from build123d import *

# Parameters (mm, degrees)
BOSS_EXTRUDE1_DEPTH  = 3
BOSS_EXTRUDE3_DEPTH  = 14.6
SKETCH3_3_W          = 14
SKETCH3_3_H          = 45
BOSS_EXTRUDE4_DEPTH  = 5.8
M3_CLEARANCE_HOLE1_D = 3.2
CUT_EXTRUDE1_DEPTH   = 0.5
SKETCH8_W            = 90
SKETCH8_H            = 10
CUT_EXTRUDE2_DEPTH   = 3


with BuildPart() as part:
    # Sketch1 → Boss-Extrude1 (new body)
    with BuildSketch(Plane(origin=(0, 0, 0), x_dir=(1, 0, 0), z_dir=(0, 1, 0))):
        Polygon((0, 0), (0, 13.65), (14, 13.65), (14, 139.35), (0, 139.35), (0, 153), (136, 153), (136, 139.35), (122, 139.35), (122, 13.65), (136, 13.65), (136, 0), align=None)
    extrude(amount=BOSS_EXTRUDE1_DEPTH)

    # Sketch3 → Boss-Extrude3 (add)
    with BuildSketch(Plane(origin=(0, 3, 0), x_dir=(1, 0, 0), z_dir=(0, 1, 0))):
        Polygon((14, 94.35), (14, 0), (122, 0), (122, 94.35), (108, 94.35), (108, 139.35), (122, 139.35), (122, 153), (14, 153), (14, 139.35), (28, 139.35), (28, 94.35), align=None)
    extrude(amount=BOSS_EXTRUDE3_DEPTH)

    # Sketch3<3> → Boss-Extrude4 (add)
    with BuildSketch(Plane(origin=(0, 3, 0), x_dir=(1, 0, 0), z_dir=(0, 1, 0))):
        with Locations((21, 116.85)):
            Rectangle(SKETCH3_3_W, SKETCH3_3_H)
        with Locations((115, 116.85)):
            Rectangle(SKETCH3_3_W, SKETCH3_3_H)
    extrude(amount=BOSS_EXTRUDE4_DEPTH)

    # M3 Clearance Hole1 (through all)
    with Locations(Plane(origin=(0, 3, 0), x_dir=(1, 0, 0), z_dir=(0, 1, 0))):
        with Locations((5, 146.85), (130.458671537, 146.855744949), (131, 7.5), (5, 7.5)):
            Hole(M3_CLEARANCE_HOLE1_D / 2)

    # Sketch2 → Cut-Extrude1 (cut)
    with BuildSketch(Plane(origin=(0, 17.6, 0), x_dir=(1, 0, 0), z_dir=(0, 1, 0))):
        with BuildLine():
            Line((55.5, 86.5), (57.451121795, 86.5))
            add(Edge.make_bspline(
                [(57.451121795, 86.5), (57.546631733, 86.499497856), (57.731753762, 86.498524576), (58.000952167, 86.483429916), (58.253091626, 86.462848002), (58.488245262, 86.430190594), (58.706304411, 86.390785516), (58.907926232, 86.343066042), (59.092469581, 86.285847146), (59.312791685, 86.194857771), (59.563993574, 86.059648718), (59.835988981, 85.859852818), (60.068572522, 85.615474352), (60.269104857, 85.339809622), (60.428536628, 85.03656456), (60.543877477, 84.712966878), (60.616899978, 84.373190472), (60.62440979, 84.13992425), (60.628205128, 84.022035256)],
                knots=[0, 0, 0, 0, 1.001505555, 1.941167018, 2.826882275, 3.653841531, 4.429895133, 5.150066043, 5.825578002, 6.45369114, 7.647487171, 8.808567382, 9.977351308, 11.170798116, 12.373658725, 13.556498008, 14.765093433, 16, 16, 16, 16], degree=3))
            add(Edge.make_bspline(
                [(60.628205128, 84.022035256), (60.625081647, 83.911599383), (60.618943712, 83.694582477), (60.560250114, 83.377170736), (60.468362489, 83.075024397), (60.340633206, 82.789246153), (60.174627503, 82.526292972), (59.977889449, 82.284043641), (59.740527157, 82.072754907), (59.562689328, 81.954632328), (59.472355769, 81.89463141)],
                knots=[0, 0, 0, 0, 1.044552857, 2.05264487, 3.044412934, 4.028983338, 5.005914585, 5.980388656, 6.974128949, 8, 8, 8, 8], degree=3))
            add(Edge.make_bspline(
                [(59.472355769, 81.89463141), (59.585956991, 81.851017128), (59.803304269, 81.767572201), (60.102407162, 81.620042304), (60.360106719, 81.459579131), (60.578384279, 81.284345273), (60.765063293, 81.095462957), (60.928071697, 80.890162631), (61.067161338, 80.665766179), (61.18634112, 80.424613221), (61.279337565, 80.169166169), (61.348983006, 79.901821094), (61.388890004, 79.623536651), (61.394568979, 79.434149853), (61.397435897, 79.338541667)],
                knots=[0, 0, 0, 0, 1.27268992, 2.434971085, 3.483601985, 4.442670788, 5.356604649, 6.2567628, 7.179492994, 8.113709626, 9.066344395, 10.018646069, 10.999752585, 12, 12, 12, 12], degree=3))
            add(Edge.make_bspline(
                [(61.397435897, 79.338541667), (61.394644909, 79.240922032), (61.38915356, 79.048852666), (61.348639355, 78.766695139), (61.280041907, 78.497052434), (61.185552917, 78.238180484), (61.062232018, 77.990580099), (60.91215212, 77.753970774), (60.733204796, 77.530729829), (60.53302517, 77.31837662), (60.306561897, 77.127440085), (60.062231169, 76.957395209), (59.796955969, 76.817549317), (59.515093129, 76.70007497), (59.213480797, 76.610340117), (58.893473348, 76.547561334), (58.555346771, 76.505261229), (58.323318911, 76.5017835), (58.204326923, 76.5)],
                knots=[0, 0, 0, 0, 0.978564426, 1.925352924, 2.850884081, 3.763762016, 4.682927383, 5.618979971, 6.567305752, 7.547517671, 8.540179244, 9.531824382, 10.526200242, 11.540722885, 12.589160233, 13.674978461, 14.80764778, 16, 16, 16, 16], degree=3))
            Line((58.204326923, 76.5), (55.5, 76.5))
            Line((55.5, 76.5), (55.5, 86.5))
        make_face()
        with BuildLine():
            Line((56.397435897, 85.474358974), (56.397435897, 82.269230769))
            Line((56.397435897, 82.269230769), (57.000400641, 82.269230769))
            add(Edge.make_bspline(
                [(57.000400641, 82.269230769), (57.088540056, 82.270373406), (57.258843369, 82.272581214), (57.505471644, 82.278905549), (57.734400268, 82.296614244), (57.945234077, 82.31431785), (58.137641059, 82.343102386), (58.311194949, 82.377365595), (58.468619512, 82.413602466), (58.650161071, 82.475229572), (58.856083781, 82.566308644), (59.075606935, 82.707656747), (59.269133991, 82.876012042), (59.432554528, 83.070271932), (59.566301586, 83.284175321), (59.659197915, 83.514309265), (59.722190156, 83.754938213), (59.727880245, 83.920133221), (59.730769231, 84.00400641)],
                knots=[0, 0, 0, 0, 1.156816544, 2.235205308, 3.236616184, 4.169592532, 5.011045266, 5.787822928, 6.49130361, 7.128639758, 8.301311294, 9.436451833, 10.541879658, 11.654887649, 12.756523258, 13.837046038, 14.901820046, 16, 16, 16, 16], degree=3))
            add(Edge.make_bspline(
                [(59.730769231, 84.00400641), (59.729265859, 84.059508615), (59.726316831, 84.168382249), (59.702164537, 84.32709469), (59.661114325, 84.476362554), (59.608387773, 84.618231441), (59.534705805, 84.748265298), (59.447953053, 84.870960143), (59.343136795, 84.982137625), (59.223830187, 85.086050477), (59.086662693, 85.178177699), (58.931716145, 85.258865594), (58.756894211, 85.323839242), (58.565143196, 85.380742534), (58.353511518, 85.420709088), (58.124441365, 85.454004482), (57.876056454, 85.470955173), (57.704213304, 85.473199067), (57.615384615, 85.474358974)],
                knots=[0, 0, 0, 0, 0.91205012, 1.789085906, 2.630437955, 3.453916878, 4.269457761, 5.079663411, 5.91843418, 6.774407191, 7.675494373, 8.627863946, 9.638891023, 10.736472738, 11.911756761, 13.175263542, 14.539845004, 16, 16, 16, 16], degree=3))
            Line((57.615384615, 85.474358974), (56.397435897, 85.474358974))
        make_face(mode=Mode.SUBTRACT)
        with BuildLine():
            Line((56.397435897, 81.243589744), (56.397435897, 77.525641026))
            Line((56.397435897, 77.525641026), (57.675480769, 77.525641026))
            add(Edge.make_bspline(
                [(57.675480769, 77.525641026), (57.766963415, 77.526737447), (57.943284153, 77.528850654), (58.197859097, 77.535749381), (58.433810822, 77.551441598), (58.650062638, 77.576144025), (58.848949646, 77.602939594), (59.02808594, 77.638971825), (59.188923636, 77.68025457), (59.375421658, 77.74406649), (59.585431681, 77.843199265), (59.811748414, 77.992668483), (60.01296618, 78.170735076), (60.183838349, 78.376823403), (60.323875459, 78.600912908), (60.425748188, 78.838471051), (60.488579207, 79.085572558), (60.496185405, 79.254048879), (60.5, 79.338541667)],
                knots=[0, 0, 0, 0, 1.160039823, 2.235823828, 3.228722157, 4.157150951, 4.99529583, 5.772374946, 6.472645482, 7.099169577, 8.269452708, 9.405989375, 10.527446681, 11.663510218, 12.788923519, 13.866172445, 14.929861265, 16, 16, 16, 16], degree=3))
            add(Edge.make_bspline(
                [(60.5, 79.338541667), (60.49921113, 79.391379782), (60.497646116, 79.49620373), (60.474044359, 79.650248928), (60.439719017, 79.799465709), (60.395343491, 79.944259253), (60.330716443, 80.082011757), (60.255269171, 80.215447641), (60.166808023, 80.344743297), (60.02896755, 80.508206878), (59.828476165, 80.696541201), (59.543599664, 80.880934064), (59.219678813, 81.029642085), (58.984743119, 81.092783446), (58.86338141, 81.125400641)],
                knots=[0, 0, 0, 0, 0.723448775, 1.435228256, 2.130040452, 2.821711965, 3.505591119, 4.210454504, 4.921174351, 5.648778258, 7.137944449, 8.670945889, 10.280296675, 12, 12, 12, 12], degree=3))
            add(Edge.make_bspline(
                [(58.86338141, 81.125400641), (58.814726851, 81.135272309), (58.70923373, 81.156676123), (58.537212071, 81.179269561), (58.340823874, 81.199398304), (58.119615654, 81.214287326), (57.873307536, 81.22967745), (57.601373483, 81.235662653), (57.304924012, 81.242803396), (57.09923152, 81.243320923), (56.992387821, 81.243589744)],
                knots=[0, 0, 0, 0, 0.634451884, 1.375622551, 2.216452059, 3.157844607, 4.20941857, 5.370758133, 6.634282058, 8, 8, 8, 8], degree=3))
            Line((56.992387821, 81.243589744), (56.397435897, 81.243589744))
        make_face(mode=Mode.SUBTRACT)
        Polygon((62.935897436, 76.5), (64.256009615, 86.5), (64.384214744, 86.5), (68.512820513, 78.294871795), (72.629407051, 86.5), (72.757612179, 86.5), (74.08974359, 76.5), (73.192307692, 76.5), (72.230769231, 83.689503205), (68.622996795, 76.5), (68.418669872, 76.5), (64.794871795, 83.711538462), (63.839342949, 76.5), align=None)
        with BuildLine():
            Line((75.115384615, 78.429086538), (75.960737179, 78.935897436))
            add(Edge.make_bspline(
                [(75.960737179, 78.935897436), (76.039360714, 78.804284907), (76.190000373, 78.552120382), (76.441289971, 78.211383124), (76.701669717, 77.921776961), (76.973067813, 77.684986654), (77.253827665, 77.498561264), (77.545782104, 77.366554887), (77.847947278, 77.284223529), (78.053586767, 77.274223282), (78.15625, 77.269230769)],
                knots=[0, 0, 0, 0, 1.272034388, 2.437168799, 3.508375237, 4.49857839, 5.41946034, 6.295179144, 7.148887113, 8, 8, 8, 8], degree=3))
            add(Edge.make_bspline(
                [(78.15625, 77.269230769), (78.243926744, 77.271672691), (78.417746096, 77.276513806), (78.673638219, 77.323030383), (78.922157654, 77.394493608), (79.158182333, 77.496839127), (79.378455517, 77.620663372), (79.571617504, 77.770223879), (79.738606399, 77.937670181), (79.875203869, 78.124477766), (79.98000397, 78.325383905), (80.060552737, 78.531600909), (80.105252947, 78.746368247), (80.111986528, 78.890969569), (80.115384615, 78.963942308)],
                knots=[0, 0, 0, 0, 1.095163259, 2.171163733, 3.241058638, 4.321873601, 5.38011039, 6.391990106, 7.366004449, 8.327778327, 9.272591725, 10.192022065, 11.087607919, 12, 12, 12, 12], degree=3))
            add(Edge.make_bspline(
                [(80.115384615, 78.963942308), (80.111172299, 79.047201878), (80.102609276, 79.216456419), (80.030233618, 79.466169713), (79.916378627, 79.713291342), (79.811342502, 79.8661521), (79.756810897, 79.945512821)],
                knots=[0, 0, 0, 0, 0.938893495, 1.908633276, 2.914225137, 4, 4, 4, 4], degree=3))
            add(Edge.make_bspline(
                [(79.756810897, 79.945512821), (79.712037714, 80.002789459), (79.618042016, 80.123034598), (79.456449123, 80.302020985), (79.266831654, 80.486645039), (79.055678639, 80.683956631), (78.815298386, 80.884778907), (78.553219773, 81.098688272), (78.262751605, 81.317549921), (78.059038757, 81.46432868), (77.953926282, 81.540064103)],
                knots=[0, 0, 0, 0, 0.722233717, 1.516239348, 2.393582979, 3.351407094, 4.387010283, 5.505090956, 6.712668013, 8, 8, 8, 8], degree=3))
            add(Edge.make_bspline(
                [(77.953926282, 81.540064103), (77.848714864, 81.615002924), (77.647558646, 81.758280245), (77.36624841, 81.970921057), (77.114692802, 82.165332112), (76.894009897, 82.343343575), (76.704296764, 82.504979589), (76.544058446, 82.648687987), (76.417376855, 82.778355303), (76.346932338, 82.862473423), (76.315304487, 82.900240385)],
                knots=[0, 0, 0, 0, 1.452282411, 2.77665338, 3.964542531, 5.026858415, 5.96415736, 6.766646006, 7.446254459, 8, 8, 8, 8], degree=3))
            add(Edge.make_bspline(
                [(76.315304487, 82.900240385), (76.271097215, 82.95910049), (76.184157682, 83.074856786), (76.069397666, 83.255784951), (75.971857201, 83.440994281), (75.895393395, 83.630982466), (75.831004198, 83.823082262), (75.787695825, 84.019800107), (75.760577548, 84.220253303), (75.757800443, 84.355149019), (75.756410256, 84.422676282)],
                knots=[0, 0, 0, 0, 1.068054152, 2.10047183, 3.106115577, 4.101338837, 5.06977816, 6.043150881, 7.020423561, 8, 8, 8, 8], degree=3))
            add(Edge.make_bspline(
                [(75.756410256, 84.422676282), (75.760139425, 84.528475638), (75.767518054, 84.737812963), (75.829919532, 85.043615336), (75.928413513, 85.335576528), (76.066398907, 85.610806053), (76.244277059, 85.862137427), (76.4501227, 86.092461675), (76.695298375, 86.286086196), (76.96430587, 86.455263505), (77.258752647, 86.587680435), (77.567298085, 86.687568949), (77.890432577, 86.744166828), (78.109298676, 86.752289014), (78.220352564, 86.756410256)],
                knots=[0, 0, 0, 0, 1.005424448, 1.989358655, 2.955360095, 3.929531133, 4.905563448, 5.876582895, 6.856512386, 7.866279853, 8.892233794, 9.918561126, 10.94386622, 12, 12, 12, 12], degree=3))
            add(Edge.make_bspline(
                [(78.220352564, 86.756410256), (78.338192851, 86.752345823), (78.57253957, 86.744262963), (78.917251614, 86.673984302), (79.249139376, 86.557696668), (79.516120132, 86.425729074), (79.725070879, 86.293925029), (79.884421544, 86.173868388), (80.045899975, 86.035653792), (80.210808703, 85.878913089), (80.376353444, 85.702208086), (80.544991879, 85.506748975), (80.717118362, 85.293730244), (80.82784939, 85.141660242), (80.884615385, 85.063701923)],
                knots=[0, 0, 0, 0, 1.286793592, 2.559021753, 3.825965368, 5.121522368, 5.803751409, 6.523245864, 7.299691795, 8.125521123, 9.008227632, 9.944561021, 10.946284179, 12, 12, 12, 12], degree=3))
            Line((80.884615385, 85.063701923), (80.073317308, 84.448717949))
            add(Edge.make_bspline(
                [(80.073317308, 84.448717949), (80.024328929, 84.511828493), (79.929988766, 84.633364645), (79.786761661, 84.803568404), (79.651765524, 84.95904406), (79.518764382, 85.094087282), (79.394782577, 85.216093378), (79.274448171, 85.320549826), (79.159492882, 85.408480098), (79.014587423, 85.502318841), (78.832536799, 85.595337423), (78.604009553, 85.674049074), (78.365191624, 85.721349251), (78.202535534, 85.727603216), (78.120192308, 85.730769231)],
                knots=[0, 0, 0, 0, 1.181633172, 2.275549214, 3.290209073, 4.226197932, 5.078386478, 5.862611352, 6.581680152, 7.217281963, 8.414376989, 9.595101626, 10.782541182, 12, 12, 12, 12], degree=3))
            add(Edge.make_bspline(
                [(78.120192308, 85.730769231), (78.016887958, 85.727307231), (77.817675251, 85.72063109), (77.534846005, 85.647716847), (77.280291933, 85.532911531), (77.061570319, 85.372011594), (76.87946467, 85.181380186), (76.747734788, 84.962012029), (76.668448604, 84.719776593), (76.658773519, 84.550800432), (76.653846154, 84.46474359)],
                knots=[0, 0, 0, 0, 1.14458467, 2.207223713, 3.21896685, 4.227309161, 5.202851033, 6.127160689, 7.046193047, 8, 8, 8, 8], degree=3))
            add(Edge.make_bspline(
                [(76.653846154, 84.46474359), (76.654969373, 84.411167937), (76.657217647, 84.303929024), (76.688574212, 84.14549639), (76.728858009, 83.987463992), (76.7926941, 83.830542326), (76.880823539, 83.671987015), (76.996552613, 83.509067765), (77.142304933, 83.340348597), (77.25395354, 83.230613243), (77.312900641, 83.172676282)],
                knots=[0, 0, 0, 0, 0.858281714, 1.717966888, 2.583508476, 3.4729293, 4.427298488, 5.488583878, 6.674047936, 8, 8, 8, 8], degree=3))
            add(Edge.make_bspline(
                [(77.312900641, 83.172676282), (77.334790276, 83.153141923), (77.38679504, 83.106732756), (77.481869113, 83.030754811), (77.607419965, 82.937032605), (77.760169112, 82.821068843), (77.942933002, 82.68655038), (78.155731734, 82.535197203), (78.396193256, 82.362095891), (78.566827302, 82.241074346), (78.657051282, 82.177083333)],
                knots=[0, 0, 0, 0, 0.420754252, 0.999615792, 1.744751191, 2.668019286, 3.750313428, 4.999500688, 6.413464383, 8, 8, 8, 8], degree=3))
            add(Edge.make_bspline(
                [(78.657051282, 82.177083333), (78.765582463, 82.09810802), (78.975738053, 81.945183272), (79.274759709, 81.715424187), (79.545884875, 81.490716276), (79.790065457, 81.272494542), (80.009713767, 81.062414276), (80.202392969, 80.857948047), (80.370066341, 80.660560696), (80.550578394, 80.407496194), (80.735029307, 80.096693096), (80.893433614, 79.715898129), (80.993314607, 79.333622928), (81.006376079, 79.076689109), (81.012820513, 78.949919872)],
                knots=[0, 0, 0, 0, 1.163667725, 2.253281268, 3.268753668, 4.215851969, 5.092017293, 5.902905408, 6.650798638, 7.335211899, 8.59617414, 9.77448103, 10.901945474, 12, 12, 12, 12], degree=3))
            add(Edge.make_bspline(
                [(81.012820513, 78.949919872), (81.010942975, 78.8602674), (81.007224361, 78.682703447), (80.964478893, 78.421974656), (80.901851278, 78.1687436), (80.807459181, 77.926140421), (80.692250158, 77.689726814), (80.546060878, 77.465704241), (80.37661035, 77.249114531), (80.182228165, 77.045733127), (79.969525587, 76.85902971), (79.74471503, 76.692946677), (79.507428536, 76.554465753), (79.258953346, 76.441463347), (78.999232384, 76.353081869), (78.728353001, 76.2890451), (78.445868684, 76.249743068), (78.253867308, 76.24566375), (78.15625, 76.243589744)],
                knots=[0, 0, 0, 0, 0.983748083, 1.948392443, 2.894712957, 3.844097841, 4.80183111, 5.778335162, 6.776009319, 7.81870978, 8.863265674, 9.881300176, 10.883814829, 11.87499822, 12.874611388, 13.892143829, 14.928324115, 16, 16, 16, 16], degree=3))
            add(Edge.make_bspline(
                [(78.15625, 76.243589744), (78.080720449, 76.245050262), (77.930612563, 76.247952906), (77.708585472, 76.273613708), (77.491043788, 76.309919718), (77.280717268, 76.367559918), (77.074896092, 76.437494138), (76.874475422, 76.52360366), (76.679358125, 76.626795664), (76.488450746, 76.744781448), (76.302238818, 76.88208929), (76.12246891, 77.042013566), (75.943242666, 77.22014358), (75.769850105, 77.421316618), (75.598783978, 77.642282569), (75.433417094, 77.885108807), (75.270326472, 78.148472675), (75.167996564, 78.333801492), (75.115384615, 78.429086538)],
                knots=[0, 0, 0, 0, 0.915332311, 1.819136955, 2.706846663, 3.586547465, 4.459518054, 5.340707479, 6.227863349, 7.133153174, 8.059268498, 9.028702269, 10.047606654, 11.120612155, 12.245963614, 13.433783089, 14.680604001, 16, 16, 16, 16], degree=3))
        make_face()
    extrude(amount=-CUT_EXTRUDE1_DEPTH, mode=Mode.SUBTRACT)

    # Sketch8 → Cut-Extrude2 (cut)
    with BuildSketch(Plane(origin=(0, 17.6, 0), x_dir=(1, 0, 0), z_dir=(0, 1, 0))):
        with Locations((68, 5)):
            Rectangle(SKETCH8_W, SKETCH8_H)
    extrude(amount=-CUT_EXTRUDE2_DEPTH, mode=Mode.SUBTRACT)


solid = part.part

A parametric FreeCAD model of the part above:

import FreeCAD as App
import Part
import Sketcher
from FreeCAD import Vector
Q = App.Units.Quantity


def add_polygon(sketch, points):
    """Adds a closed chain of lines whose ends are joined by coincident constraints."""
    first, n = sketch.GeometryCount, len(points)
    for a, b in zip(points, points[1:] + points[:1]):
        sketch.addGeometry(Part.LineSegment(App.Vector(*a, 0), App.Vector(*b, 0)), False)
    for i in range(n):
        sketch.addConstraint(Sketcher.Constraint("Coincident", first + i, 2, first + (i + 1) % n, 1))

doc = App.newDocument("Part")
body = doc.addObject("PartDesign::Body", "Body")

sketch1 = doc.addObject("Sketcher::SketchObject", "Sketch")
body.addObject(sketch1)
sketch1.AttachmentSupport = (doc.XZ_Plane, [""])
sketch1.MapMode = "FlatFace"
add_polygon(sketch1, [(0, -14), (0, 0), (136, 0), (136, -14), (122, -14), (122, -139), (136, -139), (136, -153), (0, -153), (0, -139), (14, -139), (14, -14)])
sketch1.addConstraint([
    Sketcher.Constraint("Vertical", 0),
    Sketcher.Constraint("Horizontal", 1),
    Sketcher.Constraint("Vertical", 2),
    Sketcher.Constraint("Horizontal", 3),
    Sketcher.Constraint("Vertical", 4),
    Sketcher.Constraint("Horizontal", 5),
    Sketcher.Constraint("Vertical", 6),
    Sketcher.Constraint("Horizontal", 7),
    Sketcher.Constraint("Vertical", 8),
    Sketcher.Constraint("Horizontal", 9),
    Sketcher.Constraint("Vertical", 10),
    Sketcher.Constraint("Horizontal", 11),
    Sketcher.Constraint("Coincident", 0, 2, -1, 1),
    Sketcher.Constraint("PointOnObject", 7, 2, -2),
    Sketcher.Constraint("Horizontal", 5, 2, 8, 2),
    Sketcher.Constraint("Horizontal", 3, 2, 10, 2),
    Sketcher.Constraint("Vertical", 2, 2, 5, 2),
    Sketcher.Constraint("Equal", 5, 9),
    Sketcher.Constraint("Equal", 2, 6),
    Sketcher.Constraint("DistanceX", 1, 1, 1, 2, Q("136 mm")),
    Sketcher.Constraint("DistanceX", 3, 2, 3, 1, Q("14 mm")),
    Sketcher.Constraint("DistanceY", 4, 2, 4, 1, Q("125.7 mm")),
    Sketcher.Constraint("DistanceY", 6, 2, -1, 1, Q("153 mm")),
])
pad1 = doc.addObject("PartDesign::Pad", "Pad")
body.addObject(pad1)
pad1.Profile = sketch1
pad1.Length = 3
pad1.Reversed = True

sketch2 = doc.addObject("Sketcher::SketchObject", "Sketch001")
body.addObject(sketch2)
sketch2.AttachmentSupport = (doc.XZ_Plane, [""])
sketch2.MapMode = "FlatFace"
sketch2.AttachmentOffset = App.Placement(Vector(0, 0, -3), App.Rotation())
add_polygon(sketch2, [(14, -94), (14, 0), (122, 0), (122, -94), (108, -94), (108, -139), (122, -139), (122, -153), (14, -153), (14, -139), (28, -139), (28, -94)])
sketch2.addConstraint([
    Sketcher.Constraint("Vertical", 0),
    Sketcher.Constraint("Horizontal", 1),
    Sketcher.Constraint("Vertical", 2),
    Sketcher.Constraint("Horizontal", 3),
    Sketcher.Constraint("Vertical", 4),
    Sketcher.Constraint("Horizontal", 5),
    Sketcher.Constraint("Vertical", 6),
    Sketcher.Constraint("Horizontal", 7),
    Sketcher.Constraint("Vertical", 8),
    Sketcher.Constraint("Horizontal", 9),
    Sketcher.Constraint("Vertical", 10),
    Sketcher.Constraint("Horizontal", 11),
    Sketcher.Constraint("PointOnObject", 0, 2, -1),
    Sketcher.Constraint("Horizontal", 5, 2, 8, 2),
    Sketcher.Constraint("Horizontal", 3, 2, 10, 2),
    Sketcher.Constraint("Vertical", 2, 2, 5, 2),
    Sketcher.Constraint("Vertical", 0, 2, 7, 2),
    Sketcher.Constraint("Equal", 5, 9),
    Sketcher.Constraint("DistanceX", 1, 1, 1, 2, Q("108 mm")),
    Sketcher.Constraint("DistanceX", 3, 2, 3, 1, Q("14 mm")),
    Sketcher.Constraint("DistanceY", 4, 2, 4, 1, Q("45 mm")),
    Sketcher.Constraint("DistanceX", -1, 1, 0, 2, Q("14 mm")),
    Sketcher.Constraint("DistanceY", 6, 2, -1, 1, Q("153 mm")),
    Sketcher.Constraint("DistanceY", 0, 1, 0, 2, Q("94.35 mm")),
])
pad2 = doc.addObject("PartDesign::Pad", "Pad001")
body.addObject(pad2)
pad2.Profile = sketch2
pad2.Length = 14.6
pad2.Reversed = True

sketch3 = doc.addObject("Sketcher::SketchObject", "Sketch002")
body.addObject(sketch3)
sketch3.AttachmentSupport = (doc.XZ_Plane, [""])
sketch3.MapMode = "FlatFace"
sketch3.AttachmentOffset = App.Placement(Vector(0, 0, -3), App.Rotation())
add_polygon(sketch3, [(14, -139), (14, -94), (28, -94), (28, -139)])
add_polygon(sketch3, [(108, -139), (108, -94), (122, -94), (122, -139)])
sketch3.addConstraint([
    Sketcher.Constraint("Vertical", 0),
    Sketcher.Constraint("Horizontal", 1),
    Sketcher.Constraint("Vertical", 2),
    Sketcher.Constraint("Horizontal", 3),
    Sketcher.Constraint("Vertical", 4),
    Sketcher.Constraint("Horizontal", 5),
    Sketcher.Constraint("Vertical", 6),
    Sketcher.Constraint("Horizontal", 7),
    Sketcher.Constraint("Horizontal", 1, 2, 4, 2),
    Sketcher.Constraint("Horizontal", 3, 2, 6, 2),
    Sketcher.Constraint("Equal", 3, 5),
    Sketcher.Constraint("DistanceX", 1, 1, 1, 2, Q("14 mm")),
    Sketcher.Constraint("DistanceY", 0, 1, 0, 2, Q("45 mm")),
    Sketcher.Constraint("DistanceX", -1, 1, 0, 2, Q("14 mm")),
    Sketcher.Constraint("DistanceX", -1, 1, 4, 2, Q("108 mm")),
    Sketcher.Constraint("DistanceY", 0, 2, -1, 1, Q("94.35 mm")),
])
pad3 = doc.addObject("PartDesign::Pad", "Pad002")
body.addObject(pad3)
pad3.Profile = sketch3
pad3.Length = 5.8
pad3.Reversed = True

sketch4 = doc.addObject("Sketcher::SketchObject", "Sketch003")
body.addObject(sketch4)
sketch4.AttachmentSupport = (doc.XZ_Plane, [""])
sketch4.MapMode = "FlatFace"
sketch4.AttachmentOffset = App.Placement(Vector(0, 0, -3), App.Rotation())
sketch4.addGeometry([
    Part.Circle(Vector(5, -146.8, 0), Vector(0, 0, 1), 1.6),
    Part.Circle(Vector(130.5, -146.9, 0), Vector(0, 0, 1), 1.6),
    Part.Circle(Vector(131, -7.5, 0), Vector(0, 0, 1), 1.6),
    Part.Circle(Vector(5, -7.5, 0), Vector(0, 0, 1), 1.6),
], False)
sketch4.addConstraint([
    Sketcher.Constraint("Equal", 0, 1),
    Sketcher.Constraint("Equal", 1, 2),
    Sketcher.Constraint("Equal", 2, 3),
    Sketcher.Constraint("Horizontal", 2, 3, 3, 3),
    Sketcher.Constraint("Vertical", 0, 3, 3, 3),
    Sketcher.Constraint("Diameter", 0, Q("3.2 mm")),
    Sketcher.Constraint("DistanceX", -1, 1, 0, 3, Q("5 mm")),
    Sketcher.Constraint("DistanceX", -1, 1, 2, 3, Q("131 mm")),
    Sketcher.Constraint("DistanceY", 2, 3, -1, 1, Q("7.5 mm")),
    Sketcher.Constraint("DistanceY", 0, 3, -1, 1, Q("146.85 mm")),
    Sketcher.Constraint("DistanceX", -1, 1, 1, 3, Q("130.458672 mm")),
    Sketcher.Constraint("DistanceY", 1, 3, -1, 1, Q("146.855745 mm")),
])
doc.recompute()
hole = doc.addObject("PartDesign::Hole", "Hole")
body.addObject(hole)
hole.Profile = sketch4
hole.ThreadType = "None"
hole.Diameter = 3.2
hole.DepthType = "ThroughAll"
hole.Reversed = True

sketch5 = doc.addObject("Sketcher::SketchObject", "Sketch004")
body.addObject(sketch5)
sketch5.AttachmentSupport = (doc.XZ_Plane, [""])
sketch5.MapMode = "FlatFace"
sketch5.AttachmentOffset = App.Placement(Vector(0, 0, -17.6), App.Rotation())
sketch5.addGeometry(Part.LineSegment(Vector(57.451122, -86.5, 0), Vector(55.5, -86.5, 0)), False)
sketch5.addGeometry(Part.LineSegment(Vector(55.5, -86.5, 0), Vector(55.5, -76.5, 0)), False)
sketch5.addGeometry(Part.LineSegment(Vector(55.5, -76.5, 0), Vector(58.204327, -76.5, 0)), False)
sketch5.addGeometry(Part.BSplineCurve([Vector(61.397436, -79.338542, 0), Vector(61.394645, -79.240922, 0), Vector(61.389154, -79.048853, 0), Vector(61.348639, -78.766695, 0), Vector(61.280042, -78.497052, 0), Vector(61.185553, -78.23818, 0), Vector(61.062232, -77.99058, 0), Vector(60.912152, -77.753971, 0), Vector(60.733205, -77.53073, 0), Vector(60.533025, -77.318377, 0), Vector(60.306562, -77.12744, 0), Vector(60.062231, -76.957395, 0), Vector(59.796956, -76.817549, 0), Vector(59.515093, -76.700075, 0), Vector(59.213481, -76.61034, 0), Vector(58.893473, -76.547561, 0), Vector(58.555347, -76.505261, 0), Vector(58.323319, -76.501784, 0), Vector(58.204327, -76.5, 0)], [4, 1, 1, 1, 1, 1, 1, 1, 1, 1, 1, 1, 1, 1, 1, 1, 4], [0, 0.978564426, 1.925352924, 2.850884081, 3.763762016, 4.682927383, 5.618979971, 6.567305752, 7.547517671, 8.540179244, 9.531824382, 10.526200242, 11.540722885, 12.589160233, 13.674978461, 14.80764778, 16], False, 3, [1, 1, 1, 1, 1, 1, 1, 1, 1, 1, 1, 1, 1, 1, 1, 1, 1, 1, 1], False), False)
sketch5.addGeometry(Part.BSplineCurve([Vector(59.472356, -81.894631, 0), Vector(59.585957, -81.851017, 0), Vector(59.803304, -81.767572, 0), Vector(60.102407, -81.620042, 0), Vector(60.360107, -81.459579, 0), Vector(60.578384, -81.284345, 0), Vector(60.765063, -81.095463, 0), Vector(60.928072, -80.890163, 0), Vector(61.067161, -80.665766, 0), Vector(61.186341, -80.424613, 0), Vector(61.279338, -80.169166, 0), Vector(61.348983, -79.901821, 0), Vector(61.38889, -79.623537, 0), Vector(61.394569, -79.43415, 0), Vector(61.397436, -79.338542, 0)], [4, 1, 1, 1, 1, 1, 1, 1, 1, 1, 1, 1, 4], [0, 1.27268992, 2.434971085, 3.483601985, 4.442670788, 5.356604649, 6.2567628, 7.179492994, 8.113709626, 9.066344395, 10.018646069, 10.999752585, 12], False, 3, [1, 1, 1, 1, 1, 1, 1, 1, 1, 1, 1, 1, 1, 1, 1], False), False)
sketch5.addGeometry(Part.BSplineCurve([Vector(60.628205, -84.022035, 0), Vector(60.625082, -83.911599, 0), Vector(60.618944, -83.694582, 0), Vector(60.56025, -83.377171, 0), Vector(60.468362, -83.075024, 0), Vector(60.340633, -82.789246, 0), Vector(60.174628, -82.526293, 0), Vector(59.977889, -82.284044, 0), Vector(59.740527, -82.072755, 0), Vector(59.562689, -81.954632, 0), Vector(59.472356, -81.894631, 0)], [4, 1, 1, 1, 1, 1, 1, 1, 4], [0, 1.044552857, 2.05264487, 3.044412934, 4.028983338, 5.005914585, 5.980388656, 6.974128949, 8], False, 3, [1, 1, 1, 1, 1, 1, 1, 1, 1, 1, 1], False), False)
sketch5.addGeometry(Part.BSplineCurve([Vector(57.451122, -86.5, 0), Vector(57.546632, -86.499498, 0), Vector(57.731754, -86.498525, 0), Vector(58.000952, -86.48343, 0), Vector(58.253092, -86.462848, 0), Vector(58.488245, -86.430191, 0), Vector(58.706304, -86.390786, 0), Vector(58.907926, -86.343066, 0), Vector(59.09247, -86.285847, 0), Vector(59.312792, -86.194858, 0), Vector(59.563994, -86.059649, 0), Vector(59.835989, -85.859853, 0), Vector(60.068573, -85.615474, 0), Vector(60.269105, -85.33981, 0), Vector(60.428537, -85.036565, 0), Vector(60.543877, -84.712967, 0), Vector(60.6169, -84.37319, 0), Vector(60.62441, -84.139924, 0), Vector(60.628205, -84.022035, 0)], [4, 1, 1, 1, 1, 1, 1, 1, 1, 1, 1, 1, 1, 1, 1, 1, 4], [0, 1.001505555, 1.941167018, 2.826882275, 3.653841531, 4.429895133, 5.150066043, 5.825578002, 6.45369114, 7.647487171, 8.808567382, 9.977351308, 11.170798116, 12.373658725, 13.556498008, 14.765093433, 16], False, 3, [1, 1, 1, 1, 1, 1, 1, 1, 1, 1, 1, 1, 1, 1, 1, 1, 1, 1, 1], False), False)
sketch5.addGeometry(Part.LineSegment(Vector(56.397436, -81.24359, 0), Vector(56.992388, -81.24359, 0)), False)
sketch5.addGeometry(Part.BSplineCurve([Vector(58.863381, -81.125401, 0), Vector(58.814727, -81.135272, 0), Vector(58.709234, -81.156676, 0), Vector(58.537212, -81.17927, 0), Vector(58.340824, -81.199398, 0), Vector(58.119616, -81.214287, 0), Vector(57.873308, -81.229677, 0), Vector(57.601373, -81.235663, 0), Vector(57.304924, -81.242803, 0), Vector(57.099232, -81.243321, 0), Vector(56.992388, -81.24359, 0)], [4, 1, 1, 1, 1, 1, 1, 1, 4], [0, 0.634451884, 1.375622551, 2.216452059, 3.157844607, 4.20941857, 5.370758133, 6.634282058, 8], False, 3, [1, 1, 1, 1, 1, 1, 1, 1, 1, 1, 1], False), False)
sketch5.addGeometry(Part.BSplineCurve([Vector(60.5, -79.338542, 0), Vector(60.499211, -79.39138, 0), Vector(60.497646, -79.496204, 0), Vector(60.474044, -79.650249, 0), Vector(60.439719, -79.799466, 0), Vector(60.395343, -79.944259, 0), Vector(60.330716, -80.082012, 0), Vector(60.255269, -80.215448, 0), Vector(60.166808, -80.344743, 0), Vector(60.028968, -80.508207, 0), Vector(59.828476, -80.696541, 0), Vector(59.5436, -80.880934, 0), Vector(59.219679, -81.029642, 0), Vector(58.984743, -81.092783, 0), Vector(58.863381, -81.125401, 0)], [4, 1, 1, 1, 1, 1, 1, 1, 1, 1, 1, 1, 4], [0, 0.723448775, 1.435228256, 2.130040452, 2.821711965, 3.505591119, 4.210454504, 4.921174351, 5.648778258, 7.137944449, 8.670945889, 10.280296675, 12], False, 3, [1, 1, 1, 1, 1, 1, 1, 1, 1, 1, 1, 1, 1, 1, 1], False), False)
sketch5.addGeometry(Part.BSplineCurve([Vector(57.675481, -77.525641, 0), Vector(57.766963, -77.526737, 0), Vector(57.943284, -77.528851, 0), Vector(58.197859, -77.535749, 0), Vector(58.433811, -77.551442, 0), Vector(58.650063, -77.576144, 0), Vector(58.84895, -77.60294, 0), Vector(59.028086, -77.638972, 0), Vector(59.188924, -77.680255, 0), Vector(59.375422, -77.744066, 0), Vector(59.585432, -77.843199, 0), Vector(59.811748, -77.992668, 0), Vector(60.012966, -78.170735, 0), Vector(60.183838, -78.376823, 0), Vector(60.323875, -78.600913, 0), Vector(60.425748, -78.838471, 0), Vector(60.488579, -79.085573, 0), Vector(60.496185, -79.254049, 0), Vector(60.5, -79.338542, 0)], [4, 1, 1, 1, 1, 1, 1, 1, 1, 1, 1, 1, 1, 1, 1, 1, 4], [0, 1.160039823, 2.235823828, 3.228722157, 4.157150951, 4.99529583, 5.772374946, 6.472645482, 7.099169577, 8.269452708, 9.405989375, 10.527446681, 11.663510218, 12.788923519, 13.866172445, 14.929861265, 16], False, 3, [1, 1, 1, 1, 1, 1, 1, 1, 1, 1, 1, 1, 1, 1, 1, 1, 1, 1, 1], False), False)
sketch5.addGeometry(Part.LineSegment(Vector(57.675481, -77.525641, 0), Vector(56.397436, -77.525641, 0)), False)
sketch5.addGeometry(Part.LineSegment(Vector(56.397436, -77.525641, 0), Vector(56.397436, -81.24359, 0)), False)
sketch5.addGeometry(Part.LineSegment(Vector(56.397436, -85.474359, 0), Vector(57.615385, -85.474359, 0)), False)
sketch5.addGeometry(Part.BSplineCurve([Vector(59.730769, -84.004006, 0), Vector(59.729266, -84.059509, 0), Vector(59.726317, -84.168382, 0), Vector(59.702165, -84.327095, 0), Vector(59.661114, -84.476363, 0), Vector(59.608388, -84.618231, 0), Vector(59.534706, -84.748265, 0), Vector(59.447953, -84.87096, 0), Vector(59.343137, -84.982138, 0), Vector(59.22383, -85.08605, 0), Vector(59.086663, -85.178178, 0), Vector(58.931716, -85.258866, 0), Vector(58.756894, -85.323839, 0), Vector(58.565143, -85.380743, 0), Vector(58.353512, -85.420709, 0), Vector(58.124441, -85.454004, 0), Vector(57.876056, -85.470955, 0), Vector(57.704213, -85.473199, 0), Vector(57.615385, -85.474359, 0)], [4, 1, 1, 1, 1, 1, 1, 1, 1, 1, 1, 1, 1, 1, 1, 1, 4], [0, 0.91205012, 1.789085906, 2.630437955, 3.453916878, 4.269457761, 5.079663411, 5.91843418, 6.774407191, 7.675494373, 8.627863946, 9.638891023, 10.736472738, 11.911756761, 13.175263542, 14.539845004, 16], False, 3, [1, 1, 1, 1, 1, 1, 1, 1, 1, 1, 1, 1, 1, 1, 1, 1, 1, 1, 1], False), False)
sketch5.addGeometry(Part.BSplineCurve([Vector(57.000401, -82.269231, 0), Vector(57.08854, -82.270373, 0), Vector(57.258843, -82.272581, 0), Vector(57.505472, -82.278906, 0), Vector(57.7344, -82.296614, 0), Vector(57.945234, -82.314318, 0), Vector(58.137641, -82.343102, 0), Vector(58.311195, -82.377366, 0), Vector(58.46862, -82.413602, 0), Vector(58.650161, -82.47523, 0), Vector(58.856084, -82.566309, 0), Vector(59.075607, -82.707657, 0), Vector(59.269134, -82.876012, 0), Vector(59.432555, -83.070272, 0), Vector(59.566302, -83.284175, 0), Vector(59.659198, -83.514309, 0), Vector(59.72219, -83.754938, 0), Vector(59.72788, -83.920133, 0), Vector(59.730769, -84.004006, 0)], [4, 1, 1, 1, 1, 1, 1, 1, 1, 1, 1, 1, 1, 1, 1, 1, 4], [0, 1.156816544, 2.235205308, 3.236616184, 4.169592532, 5.011045266, 5.787822928, 6.49130361, 7.128639758, 8.301311294, 9.436451833, 10.541879658, 11.654887649, 12.756523258, 13.837046038, 14.901820046, 16], False, 3, [1, 1, 1, 1, 1, 1, 1, 1, 1, 1, 1, 1, 1, 1, 1, 1, 1, 1, 1], False), False)
sketch5.addGeometry(Part.LineSegment(Vector(57.000401, -82.269231, 0), Vector(56.397436, -82.269231, 0)), False)
sketch5.addGeometry(Part.LineSegment(Vector(56.397436, -82.269231, 0), Vector(56.397436, -85.474359, 0)), False)
add_polygon(sketch5, [(64.25601, -86.5), (62.935897, -76.5), (63.839343, -76.5), (64.794872, -83.711538), (68.41867, -76.5), (68.622997, -76.5), (72.230769, -83.689503), (73.192308, -76.5), (74.089744, -76.5), (72.757612, -86.5), (72.629407, -86.5), (68.512821, -78.294872), (64.384215, -86.5)])
sketch5.addGeometry(Part.LineSegment(Vector(75.960737, -78.935897, 0), Vector(75.115385, -78.429087, 0)), False)
sketch5.addGeometry(Part.BSplineCurve([Vector(78.15625, -76.24359, 0), Vector(78.08072, -76.24505, 0), Vector(77.930613, -76.247953, 0), Vector(77.708585, -76.273614, 0), Vector(77.491044, -76.30992, 0), Vector(77.280717, -76.36756, 0), Vector(77.074896, -76.437494, 0), Vector(76.874475, -76.523604, 0), Vector(76.679358, -76.626796, 0), Vector(76.488451, -76.744781, 0), Vector(76.302239, -76.882089, 0), Vector(76.122469, -77.042014, 0), Vector(75.943243, -77.220144, 0), Vector(75.76985, -77.421317, 0), Vector(75.598784, -77.642283, 0), Vector(75.433417, -77.885109, 0), Vector(75.270326, -78.148473, 0), Vector(75.167997, -78.333801, 0), Vector(75.115385, -78.429087, 0)], [4, 1, 1, 1, 1, 1, 1, 1, 1, 1, 1, 1, 1, 1, 1, 1, 4], [0, 0.915332311, 1.819136955, 2.706846663, 3.586547465, 4.459518054, 5.340707479, 6.227863349, 7.133153174, 8.059268498, 9.028702269, 10.047606654, 11.120612155, 12.245963614, 13.433783089, 14.680604001, 16], False, 3, [1, 1, 1, 1, 1, 1, 1, 1, 1, 1, 1, 1, 1, 1, 1, 1, 1, 1, 1], False), False)
sketch5.addGeometry(Part.BSplineCurve([Vector(81.012821, -78.94992, 0), Vector(81.010943, -78.860267, 0), Vector(81.007224, -78.682703, 0), Vector(80.964479, -78.421975, 0), Vector(80.901851, -78.168744, 0), Vector(80.807459, -77.92614, 0), Vector(80.69225, -77.689727, 0), Vector(80.546061, -77.465704, 0), Vector(80.37661, -77.249115, 0), Vector(80.182228, -77.045733, 0), Vector(79.969526, -76.85903, 0), Vector(79.744715, -76.692947, 0), Vector(79.507429, -76.554466, 0), Vector(79.258953, -76.441463, 0), Vector(78.999232, -76.353082, 0), Vector(78.728353, -76.289045, 0), Vector(78.445869, -76.249743, 0), Vector(78.253867, -76.245664, 0), Vector(78.15625, -76.24359, 0)], [4, 1, 1, 1, 1, 1, 1, 1, 1, 1, 1, 1, 1, 1, 1, 1, 4], [0, 0.983748083, 1.948392443, 2.894712957, 3.844097841, 4.80183111, 5.778335162, 6.776009319, 7.81870978, 8.863265674, 9.881300176, 10.883814829, 11.87499822, 12.874611388, 13.892143829, 14.928324115, 16], False, 3, [1, 1, 1, 1, 1, 1, 1, 1, 1, 1, 1, 1, 1, 1, 1, 1, 1, 1, 1], False), False)
sketch5.addGeometry(Part.BSplineCurve([Vector(78.657051, -82.177083, 0), Vector(78.765582, -82.098108, 0), Vector(78.975738, -81.945183, 0), Vector(79.27476, -81.715424, 0), Vector(79.545885, -81.490716, 0), Vector(79.790065, -81.272495, 0), Vector(80.009714, -81.062414, 0), Vector(80.202393, -80.857948, 0), Vector(80.370066, -80.660561, 0), Vector(80.550578, -80.407496, 0), Vector(80.735029, -80.096693, 0), Vector(80.893434, -79.715898, 0), Vector(80.993315, -79.333623, 0), Vector(81.006376, -79.076689, 0), Vector(81.012821, -78.94992, 0)], [4, 1, 1, 1, 1, 1, 1, 1, 1, 1, 1, 1, 4], [0, 1.163667725, 2.253281268, 3.268753668, 4.215851969, 5.092017293, 5.902905408, 6.650798638, 7.335211899, 8.59617414, 9.77448103, 10.901945474, 12], False, 3, [1, 1, 1, 1, 1, 1, 1, 1, 1, 1, 1, 1, 1, 1, 1], False), False)
sketch5.addGeometry(Part.BSplineCurve([Vector(77.312901, -83.172676, 0), Vector(77.33479, -83.153142, 0), Vector(77.386795, -83.106733, 0), Vector(77.481869, -83.030755, 0), Vector(77.60742, -82.937033, 0), Vector(77.760169, -82.821069, 0), Vector(77.942933, -82.68655, 0), Vector(78.155732, -82.535197, 0), Vector(78.396193, -82.362096, 0), Vector(78.566827, -82.241074, 0), Vector(78.657051, -82.177083, 0)], [4, 1, 1, 1, 1, 1, 1, 1, 4], [0, 0.420754252, 0.999615792, 1.744751191, 2.668019286, 3.750313428, 4.999500688, 6.413464383, 8], False, 3, [1, 1, 1, 1, 1, 1, 1, 1, 1, 1, 1], False), False)
sketch5.addGeometry(Part.BSplineCurve([Vector(76.653846, -84.464744, 0), Vector(76.654969, -84.411168, 0), Vector(76.657218, -84.303929, 0), Vector(76.688574, -84.145496, 0), Vector(76.728858, -83.987464, 0), Vector(76.792694, -83.830542, 0), Vector(76.880824, -83.671987, 0), Vector(76.996553, -83.509068, 0), Vector(77.142305, -83.340349, 0), Vector(77.253954, -83.230613, 0), Vector(77.312901, -83.172676, 0)], [4, 1, 1, 1, 1, 1, 1, 1, 4], [0, 0.858281714, 1.717966888, 2.583508476, 3.4729293, 4.427298488, 5.488583878, 6.674047936, 8], False, 3, [1, 1, 1, 1, 1, 1, 1, 1, 1, 1, 1], False), False)
sketch5.addGeometry(Part.BSplineCurve([Vector(78.120192, -85.730769, 0), Vector(78.016888, -85.727307, 0), Vector(77.817675, -85.720631, 0), Vector(77.534846, -85.647717, 0), Vector(77.280292, -85.532912, 0), Vector(77.06157, -85.372012, 0), Vector(76.879465, -85.18138, 0), Vector(76.747735, -84.962012, 0), Vector(76.668449, -84.719777, 0), Vector(76.658774, -84.5508, 0), Vector(76.653846, -84.464744, 0)], [4, 1, 1, 1, 1, 1, 1, 1, 4], [0, 1.14458467, 2.207223713, 3.21896685, 4.227309161, 5.202851033, 6.127160689, 7.046193047, 8], False, 3, [1, 1, 1, 1, 1, 1, 1, 1, 1, 1, 1], False), False)
sketch5.addGeometry(Part.BSplineCurve([Vector(80.073317, -84.448718, 0), Vector(80.024329, -84.511828, 0), Vector(79.929989, -84.633365, 0), Vector(79.786762, -84.803568, 0), Vector(79.651766, -84.959044, 0), Vector(79.518764, -85.094087, 0), Vector(79.394783, -85.216093, 0), Vector(79.274448, -85.32055, 0), Vector(79.159493, -85.40848, 0), Vector(79.014587, -85.502319, 0), Vector(78.832537, -85.595337, 0), Vector(78.60401, -85.674049, 0), Vector(78.365192, -85.721349, 0), Vector(78.202536, -85.727603, 0), Vector(78.120192, -85.730769, 0)], [4, 1, 1, 1, 1, 1, 1, 1, 1, 1, 1, 1, 4], [0, 1.181633172, 2.275549214, 3.290209073, 4.226197932, 5.078386478, 5.862611352, 6.581680152, 7.217281963, 8.414376989, 9.595101626, 10.782541182, 12], False, 3, [1, 1, 1, 1, 1, 1, 1, 1, 1, 1, 1, 1, 1, 1, 1], False), False)
sketch5.addGeometry(Part.LineSegment(Vector(80.073317, -84.448718, 0), Vector(80.884615, -85.063702, 0)), False)
sketch5.addGeometry(Part.BSplineCurve([Vector(78.220353, -86.75641, 0), Vector(78.338193, -86.752346, 0), Vector(78.57254, -86.744263, 0), Vector(78.917252, -86.673984, 0), Vector(79.249139, -86.557697, 0), Vector(79.51612, -86.425729, 0), Vector(79.725071, -86.293925, 0), Vector(79.884422, -86.173868, 0), Vector(80.0459, -86.035654, 0), Vector(80.210809, -85.878913, 0), Vector(80.376353, -85.702208, 0), Vector(80.544992, -85.506749, 0), Vector(80.717118, -85.29373, 0), Vector(80.827849, -85.14166, 0), Vector(80.884615, -85.063702, 0)], [4, 1, 1, 1, 1, 1, 1, 1, 1, 1, 1, 1, 4], [0, 1.286793592, 2.559021753, 3.825965368, 5.121522368, 5.803751409, 6.523245864, 7.299691795, 8.125521123, 9.008227632, 9.944561021, 10.946284179, 12], False, 3, [1, 1, 1, 1, 1, 1, 1, 1, 1, 1, 1, 1, 1, 1, 1], False), False)
sketch5.addGeometry(Part.BSplineCurve([Vector(75.75641, -84.422676, 0), Vector(75.760139, -84.528476, 0), Vector(75.767518, -84.737813, 0), Vector(75.82992, -85.043615, 0), Vector(75.928414, -85.335577, 0), Vector(76.066399, -85.610806, 0), Vector(76.244277, -85.862137, 0), Vector(76.450123, -86.092462, 0), Vector(76.695298, -86.286086, 0), Vector(76.964306, -86.455264, 0), Vector(77.258753, -86.58768, 0), Vector(77.567298, -86.687569, 0), Vector(77.890433, -86.744167, 0), Vector(78.109299, -86.752289, 0), Vector(78.220353, -86.75641, 0)], [4, 1, 1, 1, 1, 1, 1, 1, 1, 1, 1, 1, 4], [0, 1.005424448, 1.989358655, 2.955360095, 3.929531133, 4.905563448, 5.876582895, 6.856512386, 7.866279853, 8.892233794, 9.918561126, 10.94386622, 12], False, 3, [1, 1, 1, 1, 1, 1, 1, 1, 1, 1, 1, 1, 1, 1, 1], False), False)
sketch5.addGeometry(Part.BSplineCurve([Vector(76.315304, -82.90024, 0), Vector(76.271097, -82.9591, 0), Vector(76.184158, -83.074857, 0), Vector(76.069398, -83.255785, 0), Vector(75.971857, -83.440994, 0), Vector(75.895393, -83.630982, 0), Vector(75.831004, -83.823082, 0), Vector(75.787696, -84.0198, 0), Vector(75.760578, -84.220253, 0), Vector(75.7578, -84.355149, 0), Vector(75.75641, -84.422676, 0)], [4, 1, 1, 1, 1, 1, 1, 1, 4], [0, 1.068054152, 2.10047183, 3.106115577, 4.101338837, 5.06977816, 6.043150881, 7.020423561, 8], False, 3, [1, 1, 1, 1, 1, 1, 1, 1, 1, 1, 1], False), False)
sketch5.addGeometry(Part.BSplineCurve([Vector(77.953926, -81.540064, 0), Vector(77.848715, -81.615003, 0), Vector(77.647559, -81.75828, 0), Vector(77.366248, -81.970921, 0), Vector(77.114693, -82.165332, 0), Vector(76.89401, -82.343344, 0), Vector(76.704297, -82.50498, 0), Vector(76.544058, -82.648688, 0), Vector(76.417377, -82.778355, 0), Vector(76.346932, -82.862473, 0), Vector(76.315304, -82.90024, 0)], [4, 1, 1, 1, 1, 1, 1, 1, 4], [0, 1.452282411, 2.77665338, 3.964542531, 5.026858415, 5.96415736, 6.766646006, 7.446254459, 8], False, 3, [1, 1, 1, 1, 1, 1, 1, 1, 1, 1, 1], False), False)
sketch5.addGeometry(Part.BSplineCurve([Vector(79.756811, -79.945513, 0), Vector(79.712038, -80.002789, 0), Vector(79.618042, -80.123035, 0), Vector(79.456449, -80.302021, 0), Vector(79.266832, -80.486645, 0), Vector(79.055679, -80.683957, 0), Vector(78.815298, -80.884779, 0), Vector(78.55322, -81.098688, 0), Vector(78.262752, -81.31755, 0), Vector(78.059039, -81.464329, 0), Vector(77.953926, -81.540064, 0)], [4, 1, 1, 1, 1, 1, 1, 1, 4], [0, 0.722233717, 1.516239348, 2.393582979, 3.351407094, 4.387010283, 5.505090956, 6.712668013, 8], False, 3, [1, 1, 1, 1, 1, 1, 1, 1, 1, 1, 1], False), False)
sketch5.addGeometry(Part.BSplineCurve([Vector(80.115385, -78.963942, 0), Vector(80.111172, -79.047202, 0), Vector(80.102609, -79.216456, 0), Vector(80.030234, -79.46617, 0), Vector(79.916379, -79.713291, 0), Vector(79.811343, -79.866152, 0), Vector(79.756811, -79.945513, 0)], [4, 1, 1, 1, 4], [0, 0.938893495, 1.908633276, 2.914225137, 4], False, 3, [1, 1, 1, 1, 1, 1, 1], False), False)
sketch5.addGeometry(Part.BSplineCurve([Vector(78.15625, -77.269231, 0), Vector(78.243927, -77.271673, 0), Vector(78.417746, -77.276514, 0), Vector(78.673638, -77.32303, 0), Vector(78.922158, -77.394494, 0), Vector(79.158182, -77.496839, 0), Vector(79.378456, -77.620663, 0), Vector(79.571618, -77.770224, 0), Vector(79.738606, -77.93767, 0), Vector(79.875204, -78.124478, 0), Vector(79.980004, -78.325384, 0), Vector(80.060553, -78.531601, 0), Vector(80.105253, -78.746368, 0), Vector(80.111987, -78.89097, 0), Vector(80.115385, -78.963942, 0)], [4, 1, 1, 1, 1, 1, 1, 1, 1, 1, 1, 1, 4], [0, 1.095163259, 2.171163733, 3.241058638, 4.321873601, 5.38011039, 6.391990106, 7.366004449, 8.327778327, 9.272591725, 10.192022065, 11.087607919, 12], False, 3, [1, 1, 1, 1, 1, 1, 1, 1, 1, 1, 1, 1, 1, 1, 1], False), False)
sketch5.addGeometry(Part.BSplineCurve([Vector(75.960737, -78.935897, 0), Vector(76.039361, -78.804285, 0), Vector(76.19, -78.55212, 0), Vector(76.44129, -78.211383, 0), Vector(76.70167, -77.921777, 0), Vector(76.973068, -77.684987, 0), Vector(77.253828, -77.498561, 0), Vector(77.545782, -77.366555, 0), Vector(77.847947, -77.284224, 0), Vector(78.053587, -77.274223, 0), Vector(78.15625, -77.269231, 0)], [4, 1, 1, 1, 1, 1, 1, 1, 4], [0, 1.272034388, 2.437168799, 3.508375237, 4.49857839, 5.41946034, 6.295179144, 7.148887113, 8], False, 3, [1, 1, 1, 1, 1, 1, 1, 1, 1, 1, 1], False), False)
sketch5.addConstraint([
    Sketcher.Constraint("Block", 3),
    Sketcher.Constraint("Block", 4),
    Sketcher.Constraint("Block", 5),
    Sketcher.Constraint("Block", 6),
    Sketcher.Constraint("Block", 8),
    Sketcher.Constraint("Block", 9),
    Sketcher.Constraint("Block", 10),
    Sketcher.Constraint("Block", 14),
    Sketcher.Constraint("Block", 15),
    Sketcher.Constraint("Block", 32),
    Sketcher.Constraint("Block", 33),
    Sketcher.Constraint("Block", 34),
    Sketcher.Constraint("Block", 35),
    Sketcher.Constraint("Block", 36),
    Sketcher.Constraint("Block", 37),
    Sketcher.Constraint("Block", 38),
    Sketcher.Constraint("Block", 40),
    Sketcher.Constraint("Block", 41),
    Sketcher.Constraint("Block", 42),
    Sketcher.Constraint("Block", 43),
    Sketcher.Constraint("Block", 44),
    Sketcher.Constraint("Block", 45),
    Sketcher.Constraint("Block", 46),
    Sketcher.Constraint("Block", 47),
    Sketcher.Constraint("Coincident", 0, 2, 1, 1),
    Sketcher.Constraint("Coincident", 1, 2, 2, 1),
    Sketcher.Constraint("Coincident", 2, 2, 3, 2),
    Sketcher.Constraint("Coincident", 6, 1, 0, 1),
    Sketcher.Constraint("Coincident", 7, 2, 8, 2),
    Sketcher.Constraint("Coincident", 10, 1, 11, 1),
    Sketcher.Constraint("Coincident", 11, 2, 12, 1),
    Sketcher.Constraint("Coincident", 12, 2, 7, 1),
    Sketcher.Constraint("Coincident", 13, 2, 14, 2),
    Sketcher.Constraint("Coincident", 15, 1, 16, 1),
    Sketcher.Constraint("Coincident", 16, 2, 17, 1),
    Sketcher.Constraint("Coincident", 17, 2, 13, 1),
    Sketcher.Constraint("Coincident", 31, 2, 32, 2),
    Sketcher.Constraint("Coincident", 38, 1, 39, 1),
    Sketcher.Constraint("Coincident", 39, 2, 40, 2),
    Sketcher.Constraint("Coincident", 47, 1, 31, 1),
    Sketcher.Constraint("Horizontal", 0),
    Sketcher.Constraint("Vertical", 1),
    Sketcher.Constraint("Horizontal", 2),
    Sketcher.Constraint("Horizontal", 7),
    Sketcher.Constraint("Horizontal", 11),
    Sketcher.Constraint("Vertical", 12),
    Sketcher.Constraint("Horizontal", 13),
    Sketcher.Constraint("Horizontal", 16),
    Sketcher.Constraint("Vertical", 17),
    Sketcher.Constraint("Horizontal", 19),
    Sketcher.Constraint("Horizontal", 22),
    Sketcher.Constraint("Horizontal", 25),
    Sketcher.Constraint("Horizontal", 27),
    Sketcher.Constraint("Horizontal", 30),
    Sketcher.Constraint("DistanceY", 26, 2, 24, 2, Q("10 mm")),
    Sketcher.Constraint("DistanceY", 26, 2, 22, 2, Q("10 mm")),
    Sketcher.Constraint("DistanceX", -1, 1, 0, 2, Q("55.5 mm")),
    Sketcher.Constraint("DistanceY", 18, 2, -1, 1, Q("76.5 mm")),
    Sketcher.Constraint("DistanceY", 21, 2, -1, 1, Q("76.5 mm")),
    Sketcher.Constraint("DistanceY", 29, 2, -1, 1, Q("86.5 mm")),
    Sketcher.Constraint("DistanceX", 7, 1, 7, 2, Q("0.594952 mm")),
    Sketcher.Constraint("DistanceX", 13, 1, 13, 2, Q("1.217949 mm")),
    Sketcher.Constraint("DistanceX", 20, 2, 21, 2, Q("3.623798 mm")),
    Sketcher.Constraint("DistanceX", 18, 2, 22, 2, Q("5.687099 mm")),
    Sketcher.Constraint("DistanceX", 21, 2, 23, 2, Q("3.812099 mm")),
    Sketcher.Constraint("DistanceX", 19, 2, 25, 2, Q("10.250401 mm")),
    Sketcher.Constraint("DistanceX", 27, 2, 24, 2, Q("0.562901 mm")),
    Sketcher.Constraint("DistanceY", 39, 2, 23, 2, Q("1.374199 mm")),
    Sketcher.Constraint("Distance", 18, Q("10.086758 mm")),
    Sketcher.Constraint("Distance", 23, Q("8.04394 mm")),
    Sketcher.Constraint("Distance", 26, Q("10.088339 mm")),
    Sketcher.Constraint("Distance", 28, Q("9.179892 mm")),
    Sketcher.Constraint("DistanceX", 19, 1, 19, 2, Q("0.903446 mm")),
    Sketcher.Constraint("DistanceX", 25, 1, 25, 2, Q("0.897436 mm")),
    Sketcher.Constraint("DistanceX", 30, 2, 30, 1, Q("0.128205 mm")),
    Sketcher.Constraint("DistanceX", -1, 1, 20, 2, Q("64.794872 mm")),
    Sketcher.Constraint("DistanceY", 20, 2, -1, 1, Q("83.711538 mm")),
    Sketcher.Constraint("DistanceX", -1, 1, 28, 2, Q("68.512821 mm")),
])
pocket1 = doc.addObject("PartDesign::Pocket", "Pocket")
body.addObject(pocket1)
pocket1.Profile = sketch5
pocket1.Length = 0.5
pocket1.Reversed = True

sketch6 = doc.addObject("Sketcher::SketchObject", "Sketch005")
body.addObject(sketch6)
sketch6.AttachmentSupport = (doc.XZ_Plane, [""])
sketch6.MapMode = "FlatFace"
sketch6.AttachmentOffset = App.Placement(Vector(0, 0, -17.6), App.Rotation())
add_polygon(sketch6, [(23, -10), (23, 0), (113, 0), (113, -10)])
sketch6.addConstraint([
    Sketcher.Constraint("Vertical", 0),
    Sketcher.Constraint("Horizontal", 1),
    Sketcher.Constraint("Vertical", 2),
    Sketcher.Constraint("Horizontal", 3),
    Sketcher.Constraint("PointOnObject", 0, 2, -1),
    Sketcher.Constraint("DistanceX", 1, 1, 1, 2, Q("90 mm")),
    Sketcher.Constraint("DistanceY", 0, 1, 0, 2, Q("10 mm")),
    Sketcher.Constraint("DistanceX", -1, 1, 0, 2, Q("23 mm")),
])
pocket2 = doc.addObject("PartDesign::Pocket", "Pocket001")
body.addObject(pocket2)
pocket2.Profile = sketch6
pocket2.Length = 3
pocket2.Reversed = True

doc.recompute()
